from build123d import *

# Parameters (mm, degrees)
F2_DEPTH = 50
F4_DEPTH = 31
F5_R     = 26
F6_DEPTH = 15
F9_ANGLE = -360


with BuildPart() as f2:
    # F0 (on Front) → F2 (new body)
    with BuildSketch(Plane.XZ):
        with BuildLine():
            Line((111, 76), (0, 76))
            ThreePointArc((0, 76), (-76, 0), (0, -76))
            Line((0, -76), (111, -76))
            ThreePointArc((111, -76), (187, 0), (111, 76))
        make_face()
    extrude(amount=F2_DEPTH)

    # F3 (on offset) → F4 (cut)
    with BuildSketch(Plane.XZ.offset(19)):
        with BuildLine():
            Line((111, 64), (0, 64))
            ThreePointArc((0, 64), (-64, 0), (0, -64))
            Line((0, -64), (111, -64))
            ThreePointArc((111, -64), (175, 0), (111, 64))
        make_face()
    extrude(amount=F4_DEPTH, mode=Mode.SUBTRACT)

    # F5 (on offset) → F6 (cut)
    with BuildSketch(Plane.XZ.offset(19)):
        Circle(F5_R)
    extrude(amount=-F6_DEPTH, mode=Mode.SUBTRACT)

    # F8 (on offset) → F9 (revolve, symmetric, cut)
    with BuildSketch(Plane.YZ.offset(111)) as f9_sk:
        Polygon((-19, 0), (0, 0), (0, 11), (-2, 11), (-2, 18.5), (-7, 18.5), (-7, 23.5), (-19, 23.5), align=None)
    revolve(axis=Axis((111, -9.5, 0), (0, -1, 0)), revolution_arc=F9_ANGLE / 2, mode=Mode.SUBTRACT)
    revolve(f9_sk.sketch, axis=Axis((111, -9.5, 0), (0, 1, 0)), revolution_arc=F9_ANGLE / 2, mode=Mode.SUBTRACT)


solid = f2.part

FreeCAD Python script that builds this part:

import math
import FreeCAD as App
import Part
import Sketcher

V = App.Vector
Q = App.Units.Quantity

doc = App.newDocument("Part")
params = doc.addObject("Spreadsheet::Sheet", "Params")
for row, (alias, value) in enumerate([
    ("sketch1_radius", "76 mm"),
    ("sketch1_width", "111 mm"),
    ("pad1_length", "50 mm"),
    ("sketch2_radius", "64 mm"),
    ("sketch2_width", "111 mm"),
    ("pocket1_length", "31 mm"),
    ("sketch3_diameter", "52 mm"),
    ("pocket2_length", "15 mm"),
    ("sketch4_width", "19 mm"),
    ("sketch4_width2", "2 mm"),
    ("sketch4_width3", "5 mm"),
    ("sketch4_height", "11 mm"),
    ("sketch4_height2", "7.5 mm"),
    ("groove_angle", "180 deg"),
    ("sketch5_width", "19 mm"),
    ("sketch5_width2", "2 mm"),
    ("sketch5_width3", "5 mm"),
    ("sketch5_height", "11 mm"),
    ("sketch5_height2", "7.5 mm"),
    ("groove2_angle", "180 deg"),
], start=1):
    params.set(f"A{row}", alias)
    params.set(f"B{row}", "=" + value)
    params.setAlias(f"B{row}", alias)

body = doc.addObject("PartDesign::Body", "Body")

# Sketch on XZ plane
sketch1 = body.newObject("Sketcher::SketchObject", "Sketch")
sketch1.AttachmentSupport = (doc.getObject("XZ_Plane"), [""])
sketch1.MapMode = "FlatFace"
sketch1.addGeometry([
    Part.LineSegment(V(111, 76, 0), V(0, 76, 0)),
    Part.ArcOfCircle(Part.Circle(V(0, 0, 0), V(0, 0, 1), 76), math.radians(90), math.radians(270)),
    Part.LineSegment(V(0, -76, 0), V(111, -76, 0)),
    Part.ArcOfCircle(Part.Circle(V(111, 0, 0), V(0, 0, 1), 76), math.radians(-90), math.radians(90)),
], False)
sketch1.addConstraint([
    Sketcher.Constraint("Tangent", 0, 2, 1, 1),
    Sketcher.Constraint("Tangent", 1, 2, 2, 1),
    Sketcher.Constraint("Tangent", 2, 2, 3, 1),
    Sketcher.Constraint("Tangent", 3, 2, 0, 1),
    Sketcher.Constraint("Horizontal", 0),
    Sketcher.Constraint("Horizontal", 2),
    Sketcher.Constraint("Coincident", 1, 3, -1, 1),
    Sketcher.Constraint("Radius", 1, Q("76 mm")),
    Sketcher.Constraint("DistanceX", 0, 2, 0, 1, Q("111 mm")),
])
sketch1.setExpression("Constraints[7]", "Params.sketch1_radius")
sketch1.setExpression("Constraints[8]", "Params.sketch1_width")
pad1 = body.newObject("PartDesign::Pad", "Pad")
pad1.Profile = sketch1
pad1.setExpression("Length", "Params.pad1_length")

# Sketch on XZ plane
sketch2 = body.newObject("Sketcher::SketchObject", "Sketch001")
sketch2.AttachmentSupport = (doc.getObject("XZ_Plane"), [""])
sketch2.MapMode = "FlatFace"
sketch2.AttachmentOffset = App.Placement(V(0, 0, 19), App.Rotation())
sketch2.addGeometry([
    Part.LineSegment(V(111, 64, 0), V(0, 64, 0)),
    Part.ArcOfCircle(Part.Circle(V(0, 0, 0), V(0, 0, 1), 64), math.radians(90), math.radians(270)),
    Part.LineSegment(V(0, -64, 0), V(111, -64, 0)),
    Part.ArcOfCircle(Part.Circle(V(111, 0, 0), V(0, 0, 1), 64), math.radians(-90), math.radians(90)),
], False)
sketch2.addConstraint([
    Sketcher.Constraint("Tangent", 0, 2, 1, 1),
    Sketcher.Constraint("Tangent", 1, 2, 2, 1),
    Sketcher.Constraint("Tangent", 2, 2, 3, 1),
    Sketcher.Constraint("Tangent", 3, 2, 0, 1),
    Sketcher.Constraint("Horizontal", 0),
    Sketcher.Constraint("Horizontal", 2),
    Sketcher.Constraint("Coincident", 1, 3, -1, 1),
    Sketcher.Constraint("Radius", 1, Q("64 mm")),
    Sketcher.Constraint("DistanceX", 0, 2, 0, 1, Q("111 mm")),
])
sketch2.setExpression("Constraints[7]", "Params.sketch2_radius")
sketch2.setExpression("Constraints[8]", "Params.sketch2_width")
pocket1 = body.newObject("PartDesign::Pocket", "Pocket")
pocket1.Profile = sketch2
pocket1.setExpression("Length", "Params.pocket1_length")
pocket1.Reversed = True

# Sketch on XZ plane
sketch3 = body.newObject("Sketcher::SketchObject", "Sketch002")
sketch3.AttachmentSupport = (doc.getObject("XZ_Plane"), [""])
sketch3.MapMode = "FlatFace"
sketch3.AttachmentOffset = App.Placement(V(0, 0, 19), App.Rotation())
sketch3.addGeometry(Part.Circle(V(0, 0, 0), V(0, 0, 1), 26), False)
sketch3.addConstraint([
    Sketcher.Constraint("Coincident", 0, 3, -1, 1),
    Sketcher.Constraint("Diameter", 0, Q("52 mm")),
])
sketch3.setExpression("Constraints[1]", "Params.sketch3_diameter")
pocket2 = body.newObject("PartDesign::Pocket", "Pocket001")
pocket2.Profile = sketch3
pocket2.setExpression("Length", "Params.pocket2_length")

# Sketch on YZ plane
sketch4 = body.newObject("Sketcher::SketchObject", "Sketch003")
sketch4.AttachmentSupport = (doc.getObject("YZ_Plane"), [""])
sketch4.MapMode = "FlatFace"
sketch4.AttachmentOffset = App.Placement(V(0, 0, 111), App.Rotation())
sketch4.addGeometry([
    Part.LineSegment(V(-19, 0, 0), V(0, 0, 0)),  # 0
    Part.LineSegment(V(0, 0, 0), V(0, 11, 0)),  # 1
    Part.LineSegment(V(0, 11, 0), V(-2, 11, 0)),  # 2
    Part.LineSegment(V(-2, 11, 0), V(-2, 18.5, 0)),  # 3
    Part.LineSegment(V(-2, 18.5, 0), V(-7, 18.5, 0)),  # 4
    Part.LineSegment(V(-7, 18.5, 0), V(-7, 23.5, 0)),  # 5
    Part.LineSegment(V(-7, 23.5, 0), V(-19, 23.5, 0)),  # 6
    Part.LineSegment(V(-19, 23.5, 0), V(-19, 0, 0)),  # 7
], False)
sketch4.addConstraint([
    Sketcher.Constraint("Coincident", 0, 2, 1, 1),
    Sketcher.Constraint("Coincident", 1, 2, 2, 1),
    Sketcher.Constraint("Coincident", 2, 2, 3, 1),
    Sketcher.Constraint("Coincident", 3, 2, 4, 1),
    Sketcher.Constraint("Coincident", 4, 2, 5, 1),
    Sketcher.Constraint("Coincident", 5, 2, 6, 1),
    Sketcher.Constraint("Coincident", 6, 2, 7, 1),
    Sketcher.Constraint("Coincident", 7, 2, 0, 1),
    Sketcher.Constraint("Horizontal", 0),
    Sketcher.Constraint("Vertical", 1),
    Sketcher.Constraint("Horizontal", 2),
    Sketcher.Constraint("Vertical", 3),
    Sketcher.Constraint("Horizontal", 4),
    Sketcher.Constraint("Vertical", 5),
    Sketcher.Constraint("Horizontal", 6),
    Sketcher.Constraint("Vertical", 7),
    Sketcher.Constraint("Coincident", 0, 2, -1, 1),
    Sketcher.Constraint("Equal", 4, 5),
    Sketcher.Constraint("DistanceX", 0, 1, 0, 2, Q("19 mm")),
    Sketcher.Constraint("DistanceX", 2, 2, 2, 1, Q("2 mm")),
    Sketcher.Constraint("DistanceX", 4, 2, 4, 1, Q("5 mm")),
    Sketcher.Constraint("DistanceY", 1, 1, 1, 2, Q("11 mm")),
    Sketcher.Constraint("DistanceY", 3, 1, 3, 2, Q("7.5 mm")),
])
sketch4.setExpression("Constraints[18]", "Params.sketch4_width")
sketch4.setExpression("Constraints[19]", "Params.sketch4_width2")
sketch4.setExpression("Constraints[20]", "Params.sketch4_width3")
sketch4.setExpression("Constraints[21]", "Params.sketch4_height")
sketch4.setExpression("Constraints[22]", "Params.sketch4_height2")
groove = body.newObject("PartDesign::Groove", "Groove")
groove.Profile = sketch4
groove.ReferenceAxis = (sketch4, ["H_Axis"])
groove.setExpression("Angle", "Params.groove_angle")

# Sketch on YZ plane
sketch5 = body.newObject("Sketcher::SketchObject", "Sketch004")
sketch5.AttachmentSupport = (doc.getObject("YZ_Plane"), [""])
sketch5.MapMode = "FlatFace"
sketch5.AttachmentOffset = App.Placement(V(0, 0, 111), App.Rotation())
sketch5.addGeometry([
    Part.LineSegment(V(-19, 0, 0), V(0, 0, 0)),  # 0
    Part.LineSegment(V(0, 0, 0), V(0, 11, 0)),  # 1
    Part.LineSegment(V(0, 11, 0), V(-2, 11, 0)),  # 2
    Part.LineSegment(V(-2, 11, 0), V(-2, 18.5, 0)),  # 3
    Part.LineSegment(V(-2, 18.5, 0), V(-7, 18.5, 0)),  # 4
    Part.LineSegment(V(-7, 18.5, 0), V(-7, 23.5, 0)),  # 5
    Part.LineSegment(V(-7, 23.5, 0), V(-19, 23.5, 0)),  # 6
    Part.LineSegment(V(-19, 23.5, 0), V(-19, 0, 0)),  # 7
], False)
sketch5.addConstraint([
    Sketcher.Constraint("Coincident", 0, 2, 1, 1),
    Sketcher.Constraint("Coincident", 1, 2, 2, 1),
    Sketcher.Constraint("Coincident", 2, 2, 3, 1),
    Sketcher.Constraint("Coincident", 3, 2, 4, 1),
    Sketcher.Constraint("Coincident", 4, 2, 5, 1),
    Sketcher.Constraint("Coincident", 5, 2, 6, 1),
    Sketcher.Constraint("Coincident", 6, 2, 7, 1),
    Sketcher.Constraint("Coincident", 7, 2, 0, 1),
    Sketcher.Constraint("Horizontal", 0),
    Sketcher.Constraint("Vertical", 1),
    Sketcher.Constraint("Horizontal", 2),
    Sketcher.Constraint("Vertical", 3),
    Sketcher.Constraint("Horizontal", 4),
    Sketcher.Constraint("Vertical", 5),
    Sketcher.Constraint("Horizontal", 6),
    Sketcher.Constraint("Vertical", 7),
    Sketcher.Constraint("Coincident", 0, 2, -1, 1),
    Sketcher.Constraint("Equal", 4, 5),
    Sketcher.Constraint("DistanceX", 0, 1, 0, 2, Q("19 mm")),
    Sketcher.Constraint("DistanceX", 2, 2, 2, 1, Q("2 mm")),
    Sketcher.Constraint("DistanceX", 4, 2, 4, 1, Q("5 mm")),
    Sketcher.Constraint("DistanceY", 1, 1, 1, 2, Q("11 mm")),
    Sketcher.Constraint("DistanceY", 3, 1, 3, 2, Q("7.5 mm")),
])
sketch5.setExpression("Constraints[18]", "Params.sketch5_width")
sketch5.setExpression("Constraints[19]", "Params.sketch5_width2")
sketch5.setExpression("Constraints[20]", "Params.sketch5_width3")
sketch5.setExpression("Constraints[21]", "Params.sketch5_height")
sketch5.setExpression("Constraints[22]", "Params.sketch5_height2")
groove2 = body.newObject("PartDesign::Groove", "Groove001")
groove2.Profile = sketch5
groove2.ReferenceAxis = (sketch5, ["H_Axis"])
groove2.setExpression("Angle", "Params.groove2_angle")
groove2.Reversed = True

doc.recompute()
